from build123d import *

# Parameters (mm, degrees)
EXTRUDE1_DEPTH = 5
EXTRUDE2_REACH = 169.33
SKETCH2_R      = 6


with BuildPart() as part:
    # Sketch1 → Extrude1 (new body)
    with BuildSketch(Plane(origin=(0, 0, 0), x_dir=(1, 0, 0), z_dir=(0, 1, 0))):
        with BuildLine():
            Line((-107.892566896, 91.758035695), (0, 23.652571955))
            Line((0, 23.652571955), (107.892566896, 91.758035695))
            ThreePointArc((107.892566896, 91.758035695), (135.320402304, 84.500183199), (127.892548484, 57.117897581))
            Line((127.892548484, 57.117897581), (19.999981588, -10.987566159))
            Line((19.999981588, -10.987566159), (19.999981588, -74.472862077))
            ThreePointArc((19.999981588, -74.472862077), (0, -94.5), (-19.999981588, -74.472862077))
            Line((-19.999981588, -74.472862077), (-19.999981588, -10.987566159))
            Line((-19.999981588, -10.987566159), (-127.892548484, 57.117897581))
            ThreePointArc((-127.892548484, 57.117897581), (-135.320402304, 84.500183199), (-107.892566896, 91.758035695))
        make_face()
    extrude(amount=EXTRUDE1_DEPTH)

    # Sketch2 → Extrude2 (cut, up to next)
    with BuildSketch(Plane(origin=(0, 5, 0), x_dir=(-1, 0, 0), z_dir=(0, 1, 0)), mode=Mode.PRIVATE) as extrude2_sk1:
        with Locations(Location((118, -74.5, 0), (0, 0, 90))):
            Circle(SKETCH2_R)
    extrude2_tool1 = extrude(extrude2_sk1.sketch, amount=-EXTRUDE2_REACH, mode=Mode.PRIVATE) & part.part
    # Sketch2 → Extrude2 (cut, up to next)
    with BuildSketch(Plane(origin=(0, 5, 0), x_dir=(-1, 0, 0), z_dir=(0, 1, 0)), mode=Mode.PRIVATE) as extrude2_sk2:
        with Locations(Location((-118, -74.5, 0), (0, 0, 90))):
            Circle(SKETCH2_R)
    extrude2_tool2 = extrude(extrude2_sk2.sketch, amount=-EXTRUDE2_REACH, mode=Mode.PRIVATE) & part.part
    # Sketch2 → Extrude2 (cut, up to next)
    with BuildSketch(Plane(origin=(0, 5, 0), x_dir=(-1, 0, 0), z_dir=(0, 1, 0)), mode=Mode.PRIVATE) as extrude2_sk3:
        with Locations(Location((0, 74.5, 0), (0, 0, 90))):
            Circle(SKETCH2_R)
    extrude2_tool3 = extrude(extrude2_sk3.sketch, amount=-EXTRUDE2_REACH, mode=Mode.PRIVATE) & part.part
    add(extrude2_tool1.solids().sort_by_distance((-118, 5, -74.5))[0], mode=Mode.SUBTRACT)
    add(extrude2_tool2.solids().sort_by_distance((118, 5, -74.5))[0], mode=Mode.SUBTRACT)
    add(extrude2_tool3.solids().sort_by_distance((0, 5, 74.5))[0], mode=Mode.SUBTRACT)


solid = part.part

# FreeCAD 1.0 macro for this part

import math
import FreeCAD as App
import Part
import Sketcher

V = App.Vector
Q = App.Units.Quantity

doc = App.newDocument("Part")
body = doc.addObject("PartDesign::Body", "Body")

sketch1 = body.newObject("Sketcher::SketchObject", "Sketch")
sketch1.AttachmentSupport = (doc.getObject("XZ_Plane"), [""])
sketch1.MapMode = "FlatFace"
sketch1.addGeometry(Part.LineSegment(V(0, -23.652572, 0), V(-107.892567, -91.758036, 0)), False)
sketch1.addGeometry(Part.ArcOfCircle(Part.Circle(V(-118, -74.5, 0), V(0, 0, 1), 20), math.radians(119.645185), math.radians(300.356027)), False)
sketch1.addGeometry(Part.LineSegment(V(-127.892548, -57.117898, 0), V(-19.999982, 10.987566, 0)), False)
sketch1.addGeometry(Part.LineSegment(V(-19.999982, 10.987566, 0), V(-19.999982, 74.472862, 0)), False)
sketch1.addGeometry(Part.ArcOfCircle(Part.Circle(V(0, 74.5, 0), V(0, 0, 1), 20), math.radians(-0.077744), math.radians(180.077744)), False)
sketch1.addGeometry(Part.LineSegment(V(19.999982, 74.472862, 0), V(19.999982, 10.987566, 0)), False)
sketch1.addGeometry(Part.LineSegment(V(19.999982, 10.987566, 0), V(127.892548, -57.117898, 0)), False)
sketch1.addGeometry(Part.ArcOfCircle(Part.Circle(V(118, -74.5, 0), V(0, 0, 1), 20), math.radians(-120.356027), math.radians(60.354815)), False)
sketch1.addGeometry(Part.LineSegment(V(107.892567, -91.758036, 0), V(0, -23.652572, 0)), False)
sketch1.addConstraint(Sketcher.Constraint("Coincident", 0, 2, 1, 2))
sketch1.addConstraint(Sketcher.Constraint("Coincident", 1, 1, 2, 1))
sketch1.addConstraint(Sketcher.Constraint("Coincident", 2, 2, 3, 1))
sketch1.addConstraint(Sketcher.Constraint("Coincident", 3, 2, 4, 2))
sketch1.addConstraint(Sketcher.Constraint("Coincident", 4, 1, 5, 1))
sketch1.addConstraint(Sketcher.Constraint("Coincident", 5, 2, 6, 1))
sketch1.addConstraint(Sketcher.Constraint("Coincident", 6, 2, 7, 2))
sketch1.addConstraint(Sketcher.Constraint("Coincident", 7, 1, 8, 1))
sketch1.addConstraint(Sketcher.Constraint("Coincident", 8, 2, 0, 1))
sketch1.addConstraint(Sketcher.Constraint("Vertical", 3))
sketch1.addConstraint(Sketcher.Constraint("Vertical", 5))
sketch1.addConstraint(Sketcher.Constraint("Equal", 1, 4))
sketch1.addConstraint(Sketcher.Constraint("Equal", 4, 7))
sketch1.addConstraint(Sketcher.Constraint("Symmetric", 1, 3, 7, 3, -2))
sketch1.addConstraint(Sketcher.Constraint("Symmetric", 3, 2, 4, 1, -2))
sketch1.addConstraint(Sketcher.Constraint("PointOnObject", 8, 2, -2))
sketch1.addConstraint(Sketcher.Constraint("Parallel", 0, 2))
sketch1.addConstraint(Sketcher.Constraint("Parallel", 6, 8))
sketch1.addConstraint(Sketcher.Constraint("Horizontal", 2, 2, 5, 2))
sketch1.addConstraint(Sketcher.Constraint("Horizontal", 1, 1, 6, 2))
sketch1.addConstraint(Sketcher.Constraint("Equal", 0, 2))
sketch1.addConstraint(Sketcher.Constraint("Radius", 1, Q("20 mm")))
sketch1.addConstraint(Sketcher.Constraint("DistanceX", 1, 3, -1, 1, Q("118 mm")))
sketch1.addConstraint(Sketcher.Constraint("DistanceY", 1, 3, 4, 3, Q("149 mm")))
sketch1.addConstraint(Sketcher.Constraint("DistanceY", 1, 3, -1, 1, Q("74.5 mm")))
sketch1.addConstraint(Sketcher.Constraint("DistanceY", 0, 2, 2, 2, Q("102.745602 mm")))
sketch1.addConstraint(Sketcher.Constraint("DistanceY", 3, 1, 3, 2, Q("63.485296 mm")))
sketch1.addConstraint(Sketcher.Constraint("DistanceX", 1, 1, -1, 1, Q("127.892548 mm")))
pad1 = body.newObject("PartDesign::Pad", "Pad")
pad1.Profile = sketch1
pad1.Length = 5
pad1.Reversed = True

sketch2 = body.newObject("Sketcher::SketchObject", "Sketch001")
sketch2.AttachmentSupport = (doc.getObject("XZ_Plane"), [""])
sketch2.MapMode = "FlatFace"
sketch2.AttachmentOffset = App.Placement(V(0, 0, -5), App.Rotation())
sketch2.addGeometry(Part.Circle(V(-118, -74.5, 0), V(0, 0, 1), 6), False)
sketch2.addConstraint(Sketcher.Constraint("Diameter", 0, Q("12 mm")))
sketch2.addConstraint(Sketcher.Constraint("DistanceX", 0, 3, -1, 1, Q("118 mm")))
sketch2.addConstraint(Sketcher.Constraint("DistanceY", 0, 3, -1, 1, Q("74.5 mm")))
pocket1 = body.newObject("PartDesign::Pocket", "Pocket")
pocket1.Profile = sketch2
pocket1.Type = "UpToFirst"
pocket1.Reversed = True

sketch3 = body.newObject("Sketcher::SketchObject", "Sketch002")
sketch3.AttachmentSupport = (doc.getObject("XZ_Plane"), [""])
sketch3.MapMode = "FlatFace"
sketch3.AttachmentOffset = App.Placement(V(0, 0, -5), App.Rotation())
sketch3.addGeometry(Part.Circle(V(118, -74.5, 0), V(0, 0, 1), 6), False)
sketch3.addConstraint(Sketcher.Constraint("Diameter", 0, Q("12 mm")))
sketch3.addConstraint(Sketcher.Constraint("DistanceX", -1, 1, 0, 3, Q("118 mm")))
sketch3.addConstraint(Sketcher.Constraint("DistanceY", 0, 3, -1, 1, Q("74.5 mm")))
pocket2 = body.newObject("PartDesign::Pocket", "Pocket001")
pocket2.Profile = sketch3
pocket2.Type = "UpToFirst"
pocket2.Reversed = True

sketch4 = body.newObject("Sketcher::SketchObject", "Sketch003")
sketch4.AttachmentSupport = (doc.getObject("XZ_Plane"), [""])
sketch4.MapMode = "FlatFace"
sketch4.AttachmentOffset = App.Placement(V(0, 0, -5), App.Rotation())
sketch4.addGeometry(Part.Circle(V(0, 74.5, 0), V(0, 0, 1), 6), False)
sketch4.addConstraint(Sketcher.Constraint("PointOnObject", 0, 3, -2))
sketch4.addConstraint(Sketcher.Constraint("Diameter", 0, Q("12 mm")))
sketch4.addConstraint(Sketcher.Constraint("DistanceY", -1, 1, 0, 3, Q("74.5 mm")))
pocket3 = body.newObject("PartDesign::Pocket", "Pocket002")
pocket3.Profile = sketch4
pocket3.Type = "UpToFirst"
pocket3.Reversed = True

doc.recompute()
